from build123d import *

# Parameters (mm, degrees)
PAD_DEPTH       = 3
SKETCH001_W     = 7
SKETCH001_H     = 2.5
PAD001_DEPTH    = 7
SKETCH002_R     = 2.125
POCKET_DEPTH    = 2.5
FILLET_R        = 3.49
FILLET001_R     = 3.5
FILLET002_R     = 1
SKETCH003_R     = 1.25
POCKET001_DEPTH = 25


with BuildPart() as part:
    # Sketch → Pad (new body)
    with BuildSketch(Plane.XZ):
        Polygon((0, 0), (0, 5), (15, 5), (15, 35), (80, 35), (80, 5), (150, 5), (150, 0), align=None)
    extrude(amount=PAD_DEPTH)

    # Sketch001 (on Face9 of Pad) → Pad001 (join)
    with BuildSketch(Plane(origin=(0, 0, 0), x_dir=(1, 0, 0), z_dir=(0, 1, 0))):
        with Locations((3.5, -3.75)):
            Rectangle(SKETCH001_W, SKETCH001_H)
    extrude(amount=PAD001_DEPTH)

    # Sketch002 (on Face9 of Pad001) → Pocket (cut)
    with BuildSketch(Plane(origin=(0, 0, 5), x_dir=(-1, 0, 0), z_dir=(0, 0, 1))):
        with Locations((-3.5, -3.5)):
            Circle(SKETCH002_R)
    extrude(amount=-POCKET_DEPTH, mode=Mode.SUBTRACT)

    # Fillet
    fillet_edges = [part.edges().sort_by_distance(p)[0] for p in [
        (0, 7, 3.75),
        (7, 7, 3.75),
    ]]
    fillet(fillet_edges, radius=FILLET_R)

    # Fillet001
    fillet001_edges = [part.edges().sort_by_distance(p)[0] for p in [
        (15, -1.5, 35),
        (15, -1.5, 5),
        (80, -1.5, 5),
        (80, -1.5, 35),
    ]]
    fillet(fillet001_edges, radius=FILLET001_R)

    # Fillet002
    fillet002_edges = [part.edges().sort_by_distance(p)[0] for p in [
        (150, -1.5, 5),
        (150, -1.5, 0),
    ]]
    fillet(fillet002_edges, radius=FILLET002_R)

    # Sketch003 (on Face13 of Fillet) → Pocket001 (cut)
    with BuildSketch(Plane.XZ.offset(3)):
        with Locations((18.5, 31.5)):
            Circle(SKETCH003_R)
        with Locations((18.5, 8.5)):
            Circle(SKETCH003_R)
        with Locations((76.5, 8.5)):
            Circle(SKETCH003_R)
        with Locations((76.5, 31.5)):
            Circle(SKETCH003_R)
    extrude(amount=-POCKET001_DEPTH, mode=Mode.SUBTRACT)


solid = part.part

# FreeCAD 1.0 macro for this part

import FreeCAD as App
import Part
import Sketcher

V = App.Vector
Q = App.Units.Quantity


def edges_at(feature, points):
    """Names of the edges that pass closest to the given points."""
    edges = feature.Shape.Edges
    near = lambda p: min(range(len(edges)), key=lambda i: edges[i].distToShape(Part.Vertex(*p))[0])
    return sorted({f"Edge{near(p) + 1}" for p in points})

doc = App.newDocument("Part")
body = doc.addObject("PartDesign::Body", "Body")

# Sketch on XZ plane
sketch1 = body.newObject("Sketcher::SketchObject", "Sketch")
sketch1.AttachmentSupport = (doc.getObject("XZ_Plane"), [""])
sketch1.MapMode = "FlatFace"
sketch1.addGeometry(Part.LineSegment(V(0, 5, 0), V(0, 0, 0)), False)
sketch1.addGeometry(Part.LineSegment(V(0, 0, 0), V(150, 0, 0)), False)
sketch1.addGeometry(Part.LineSegment(V(150, 0, 0), V(150, 5, 0)), False)
sketch1.addGeometry(Part.LineSegment(V(150, 5, 0), V(80, 5, 0)), False)
sketch1.addGeometry(Part.LineSegment(V(80, 5, 0), V(80, 35, 0)), False)
sketch1.addGeometry(Part.LineSegment(V(80, 35, 0), V(15, 35, 0)), False)
sketch1.addGeometry(Part.LineSegment(V(15, 35, 0), V(15, 5, 0)), False)
sketch1.addGeometry(Part.LineSegment(V(15, 5, 0), V(0, 5, 0)), False)
sketch1.addConstraint(Sketcher.Constraint("Coincident", 0, 2, 1, 1))
sketch1.addConstraint(Sketcher.Constraint("Coincident", 1, 2, 2, 1))
sketch1.addConstraint(Sketcher.Constraint("Coincident", 2, 2, 3, 1))
sketch1.addConstraint(Sketcher.Constraint("Coincident", 3, 2, 4, 1))
sketch1.addConstraint(Sketcher.Constraint("Coincident", 4, 2, 5, 1))
sketch1.addConstraint(Sketcher.Constraint("Coincident", 5, 2, 6, 1))
sketch1.addConstraint(Sketcher.Constraint("Coincident", 6, 2, 7, 1))
sketch1.addConstraint(Sketcher.Constraint("Coincident", 7, 2, 0, 1))
sketch1.addConstraint(Sketcher.Constraint("Vertical", 0))
sketch1.addConstraint(Sketcher.Constraint("Horizontal", 1))
sketch1.addConstraint(Sketcher.Constraint("Vertical", 2))
sketch1.addConstraint(Sketcher.Constraint("Horizontal", 3))
sketch1.addConstraint(Sketcher.Constraint("Vertical", 4))
sketch1.addConstraint(Sketcher.Constraint("Horizontal", 5))
sketch1.addConstraint(Sketcher.Constraint("Vertical", 6))
sketch1.addConstraint(Sketcher.Constraint("Horizontal", 7))
sketch1.addConstraint(Sketcher.Constraint("Coincident", 0, 2, -1, 1))
sketch1.addConstraint(Sketcher.Constraint("Horizontal", 3, 2, 6, 2))
sketch1.addConstraint(Sketcher.Constraint("DistanceX", 1, 1, 1, 2, Q("150 mm")))
sketch1.addConstraint(Sketcher.Constraint("DistanceX", 3, 2, 3, 1, Q("70 mm")))
sketch1.addConstraint(Sketcher.Constraint("DistanceX", 5, 2, 5, 1, Q("65 mm")))
sketch1.addConstraint(Sketcher.Constraint("DistanceY", 0, 2, 0, 1, Q("5 mm")))
sketch1.addConstraint(Sketcher.Constraint("DistanceY", 4, 1, 4, 2, Q("30 mm")))
pad1 = body.newObject("PartDesign::Pad", "Pad")
pad1.Profile = sketch1
pad1.Length = 3

# Sketch on XZ plane
sketch2 = body.newObject("Sketcher::SketchObject", "Sketch001")
sketch2.AttachmentSupport = (doc.getObject("XZ_Plane"), [""])
sketch2.MapMode = "FlatFace"
sketch2.addGeometry(Part.LineSegment(V(0, 2.5, 0), V(0, 5, 0)), False)
sketch2.addGeometry(Part.LineSegment(V(0, 5, 0), V(7, 5, 0)), False)
sketch2.addGeometry(Part.LineSegment(V(7, 5, 0), V(7, 2.5, 0)), False)
sketch2.addGeometry(Part.LineSegment(V(7, 2.5, 0), V(0, 2.5, 0)), False)
sketch2.addConstraint(Sketcher.Constraint("Coincident", 0, 2, 1, 1))
sketch2.addConstraint(Sketcher.Constraint("Coincident", 1, 2, 2, 1))
sketch2.addConstraint(Sketcher.Constraint("Coincident", 2, 2, 3, 1))
sketch2.addConstraint(Sketcher.Constraint("Coincident", 3, 2, 0, 1))
sketch2.addConstraint(Sketcher.Constraint("Vertical", 0))
sketch2.addConstraint(Sketcher.Constraint("Horizontal", 1))
sketch2.addConstraint(Sketcher.Constraint("Vertical", 2))
sketch2.addConstraint(Sketcher.Constraint("Horizontal", 3))
sketch2.addConstraint(Sketcher.Constraint("PointOnObject", 0, 2, -2))
sketch2.addConstraint(Sketcher.Constraint("DistanceX", 1, 1, 1, 2, Q("7 mm")))
sketch2.addConstraint(Sketcher.Constraint("DistanceY", 0, 1, 0, 2, Q("2.5 mm")))
sketch2.addConstraint(Sketcher.Constraint("DistanceY", -1, 1, 0, 2, Q("5 mm")))
pad2 = body.newObject("PartDesign::Pad", "Pad001")
pad2.Profile = sketch2
pad2.Length = 7
pad2.Reversed = True

# Sketch on XY plane
sketch3 = body.newObject("Sketcher::SketchObject", "Sketch002")
sketch3.AttachmentSupport = (doc.getObject("XY_Plane"), [""])
sketch3.MapMode = "FlatFace"
sketch3.AttachmentOffset = App.Placement(V(0, 0, 5), App.Rotation())
sketch3.addGeometry(Part.Circle(V(3.5, 3.5, 0), V(0, 0, 1), 2.125), False)
sketch3.addConstraint(Sketcher.Constraint("Diameter", 0, Q("4.25 mm")))
sketch3.addConstraint(Sketcher.Constraint("DistanceX", -1, 1, 0, 3, Q("3.5 mm")))
sketch3.addConstraint(Sketcher.Constraint("DistanceY", -1, 1, 0, 3, Q("3.5 mm")))
pocket1 = body.newObject("PartDesign::Pocket", "Pocket")
pocket1.Profile = sketch3
pocket1.Length = 2.5
doc.recompute()

fillet = body.newObject("PartDesign::Fillet", "Fillet")
fillet.Base = (pocket1, edges_at(pocket1, [(0, 7, 3.75), (7, 7, 3.75)]))
fillet.Radius = 3.49
doc.recompute()

fillet2 = body.newObject("PartDesign::Fillet", "Fillet001")
fillet2.Base = (fillet, edges_at(fillet, [
    (15, -1.5, 35),
    (15, -1.5, 5),
    (80, -1.5, 5),
    (80, -1.5, 35),
]))
fillet2.Radius = 3.5
doc.recompute()

fillet3 = body.newObject("PartDesign::Fillet", "Fillet002")
fillet3.Base = (fillet2, edges_at(fillet2, [(150, -1.5, 5), (150, -1.5, 0)]))
fillet3.Radius = 1

# Sketch on XZ plane
sketch4 = body.newObject("Sketcher::SketchObject", "Sketch003")
sketch4.AttachmentSupport = (doc.getObject("XZ_Plane"), [""])
sketch4.MapMode = "FlatFace"
sketch4.AttachmentOffset = App.Placement(V(0, 0, 3), App.Rotation())
sketch4.addGeometry(Part.Circle(V(18.5, 31.5, 0), V(0, 0, 1), 1.25), False)
sketch4.addGeometry(Part.Circle(V(18.5, 8.5, 0), V(0, 0, 1), 1.25), False)
sketch4.addGeometry(Part.Circle(V(76.5, 8.5, 0), V(0, 0, 1), 1.25), False)
sketch4.addGeometry(Part.Circle(V(76.5, 31.5, 0), V(0, 0, 1), 1.25), False)
sketch4.addConstraint(Sketcher.Constraint("Equal", 0, 1))
sketch4.addConstraint(Sketcher.Constraint("Equal", 1, 2))
sketch4.addConstraint(Sketcher.Constraint("Equal", 2, 3))
sketch4.addConstraint(Sketcher.Constraint("Horizontal", 1, 3, 2, 3))
sketch4.addConstraint(Sketcher.Constraint("Horizontal", 0, 3, 3, 3))
sketch4.addConstraint(Sketcher.Constraint("Vertical", 0, 3, 1, 3))
sketch4.addConstraint(Sketcher.Constraint("Vertical", 2, 3, 3, 3))
sketch4.addConstraint(Sketcher.Constraint("Diameter", 0, Q("2.5 mm")))
sketch4.addConstraint(Sketcher.Constraint("DistanceY", 1, 3, 0, 3, Q("23 mm")))
sketch4.addConstraint(Sketcher.Constraint("DistanceX", 1, 3, 2, 3, Q("58 mm")))
sketch4.addConstraint(Sketcher.Constraint("DistanceX", -1, 1, 0, 3, Q("18.5 mm")))
sketch4.addConstraint(Sketcher.Constraint("DistanceY", -1, 1, 0, 3, Q("31.5 mm")))
pocket2 = body.newObject("PartDesign::Pocket", "Pocket001")
pocket2.Profile = sketch4
pocket2.Length = 25

doc.recompute()
